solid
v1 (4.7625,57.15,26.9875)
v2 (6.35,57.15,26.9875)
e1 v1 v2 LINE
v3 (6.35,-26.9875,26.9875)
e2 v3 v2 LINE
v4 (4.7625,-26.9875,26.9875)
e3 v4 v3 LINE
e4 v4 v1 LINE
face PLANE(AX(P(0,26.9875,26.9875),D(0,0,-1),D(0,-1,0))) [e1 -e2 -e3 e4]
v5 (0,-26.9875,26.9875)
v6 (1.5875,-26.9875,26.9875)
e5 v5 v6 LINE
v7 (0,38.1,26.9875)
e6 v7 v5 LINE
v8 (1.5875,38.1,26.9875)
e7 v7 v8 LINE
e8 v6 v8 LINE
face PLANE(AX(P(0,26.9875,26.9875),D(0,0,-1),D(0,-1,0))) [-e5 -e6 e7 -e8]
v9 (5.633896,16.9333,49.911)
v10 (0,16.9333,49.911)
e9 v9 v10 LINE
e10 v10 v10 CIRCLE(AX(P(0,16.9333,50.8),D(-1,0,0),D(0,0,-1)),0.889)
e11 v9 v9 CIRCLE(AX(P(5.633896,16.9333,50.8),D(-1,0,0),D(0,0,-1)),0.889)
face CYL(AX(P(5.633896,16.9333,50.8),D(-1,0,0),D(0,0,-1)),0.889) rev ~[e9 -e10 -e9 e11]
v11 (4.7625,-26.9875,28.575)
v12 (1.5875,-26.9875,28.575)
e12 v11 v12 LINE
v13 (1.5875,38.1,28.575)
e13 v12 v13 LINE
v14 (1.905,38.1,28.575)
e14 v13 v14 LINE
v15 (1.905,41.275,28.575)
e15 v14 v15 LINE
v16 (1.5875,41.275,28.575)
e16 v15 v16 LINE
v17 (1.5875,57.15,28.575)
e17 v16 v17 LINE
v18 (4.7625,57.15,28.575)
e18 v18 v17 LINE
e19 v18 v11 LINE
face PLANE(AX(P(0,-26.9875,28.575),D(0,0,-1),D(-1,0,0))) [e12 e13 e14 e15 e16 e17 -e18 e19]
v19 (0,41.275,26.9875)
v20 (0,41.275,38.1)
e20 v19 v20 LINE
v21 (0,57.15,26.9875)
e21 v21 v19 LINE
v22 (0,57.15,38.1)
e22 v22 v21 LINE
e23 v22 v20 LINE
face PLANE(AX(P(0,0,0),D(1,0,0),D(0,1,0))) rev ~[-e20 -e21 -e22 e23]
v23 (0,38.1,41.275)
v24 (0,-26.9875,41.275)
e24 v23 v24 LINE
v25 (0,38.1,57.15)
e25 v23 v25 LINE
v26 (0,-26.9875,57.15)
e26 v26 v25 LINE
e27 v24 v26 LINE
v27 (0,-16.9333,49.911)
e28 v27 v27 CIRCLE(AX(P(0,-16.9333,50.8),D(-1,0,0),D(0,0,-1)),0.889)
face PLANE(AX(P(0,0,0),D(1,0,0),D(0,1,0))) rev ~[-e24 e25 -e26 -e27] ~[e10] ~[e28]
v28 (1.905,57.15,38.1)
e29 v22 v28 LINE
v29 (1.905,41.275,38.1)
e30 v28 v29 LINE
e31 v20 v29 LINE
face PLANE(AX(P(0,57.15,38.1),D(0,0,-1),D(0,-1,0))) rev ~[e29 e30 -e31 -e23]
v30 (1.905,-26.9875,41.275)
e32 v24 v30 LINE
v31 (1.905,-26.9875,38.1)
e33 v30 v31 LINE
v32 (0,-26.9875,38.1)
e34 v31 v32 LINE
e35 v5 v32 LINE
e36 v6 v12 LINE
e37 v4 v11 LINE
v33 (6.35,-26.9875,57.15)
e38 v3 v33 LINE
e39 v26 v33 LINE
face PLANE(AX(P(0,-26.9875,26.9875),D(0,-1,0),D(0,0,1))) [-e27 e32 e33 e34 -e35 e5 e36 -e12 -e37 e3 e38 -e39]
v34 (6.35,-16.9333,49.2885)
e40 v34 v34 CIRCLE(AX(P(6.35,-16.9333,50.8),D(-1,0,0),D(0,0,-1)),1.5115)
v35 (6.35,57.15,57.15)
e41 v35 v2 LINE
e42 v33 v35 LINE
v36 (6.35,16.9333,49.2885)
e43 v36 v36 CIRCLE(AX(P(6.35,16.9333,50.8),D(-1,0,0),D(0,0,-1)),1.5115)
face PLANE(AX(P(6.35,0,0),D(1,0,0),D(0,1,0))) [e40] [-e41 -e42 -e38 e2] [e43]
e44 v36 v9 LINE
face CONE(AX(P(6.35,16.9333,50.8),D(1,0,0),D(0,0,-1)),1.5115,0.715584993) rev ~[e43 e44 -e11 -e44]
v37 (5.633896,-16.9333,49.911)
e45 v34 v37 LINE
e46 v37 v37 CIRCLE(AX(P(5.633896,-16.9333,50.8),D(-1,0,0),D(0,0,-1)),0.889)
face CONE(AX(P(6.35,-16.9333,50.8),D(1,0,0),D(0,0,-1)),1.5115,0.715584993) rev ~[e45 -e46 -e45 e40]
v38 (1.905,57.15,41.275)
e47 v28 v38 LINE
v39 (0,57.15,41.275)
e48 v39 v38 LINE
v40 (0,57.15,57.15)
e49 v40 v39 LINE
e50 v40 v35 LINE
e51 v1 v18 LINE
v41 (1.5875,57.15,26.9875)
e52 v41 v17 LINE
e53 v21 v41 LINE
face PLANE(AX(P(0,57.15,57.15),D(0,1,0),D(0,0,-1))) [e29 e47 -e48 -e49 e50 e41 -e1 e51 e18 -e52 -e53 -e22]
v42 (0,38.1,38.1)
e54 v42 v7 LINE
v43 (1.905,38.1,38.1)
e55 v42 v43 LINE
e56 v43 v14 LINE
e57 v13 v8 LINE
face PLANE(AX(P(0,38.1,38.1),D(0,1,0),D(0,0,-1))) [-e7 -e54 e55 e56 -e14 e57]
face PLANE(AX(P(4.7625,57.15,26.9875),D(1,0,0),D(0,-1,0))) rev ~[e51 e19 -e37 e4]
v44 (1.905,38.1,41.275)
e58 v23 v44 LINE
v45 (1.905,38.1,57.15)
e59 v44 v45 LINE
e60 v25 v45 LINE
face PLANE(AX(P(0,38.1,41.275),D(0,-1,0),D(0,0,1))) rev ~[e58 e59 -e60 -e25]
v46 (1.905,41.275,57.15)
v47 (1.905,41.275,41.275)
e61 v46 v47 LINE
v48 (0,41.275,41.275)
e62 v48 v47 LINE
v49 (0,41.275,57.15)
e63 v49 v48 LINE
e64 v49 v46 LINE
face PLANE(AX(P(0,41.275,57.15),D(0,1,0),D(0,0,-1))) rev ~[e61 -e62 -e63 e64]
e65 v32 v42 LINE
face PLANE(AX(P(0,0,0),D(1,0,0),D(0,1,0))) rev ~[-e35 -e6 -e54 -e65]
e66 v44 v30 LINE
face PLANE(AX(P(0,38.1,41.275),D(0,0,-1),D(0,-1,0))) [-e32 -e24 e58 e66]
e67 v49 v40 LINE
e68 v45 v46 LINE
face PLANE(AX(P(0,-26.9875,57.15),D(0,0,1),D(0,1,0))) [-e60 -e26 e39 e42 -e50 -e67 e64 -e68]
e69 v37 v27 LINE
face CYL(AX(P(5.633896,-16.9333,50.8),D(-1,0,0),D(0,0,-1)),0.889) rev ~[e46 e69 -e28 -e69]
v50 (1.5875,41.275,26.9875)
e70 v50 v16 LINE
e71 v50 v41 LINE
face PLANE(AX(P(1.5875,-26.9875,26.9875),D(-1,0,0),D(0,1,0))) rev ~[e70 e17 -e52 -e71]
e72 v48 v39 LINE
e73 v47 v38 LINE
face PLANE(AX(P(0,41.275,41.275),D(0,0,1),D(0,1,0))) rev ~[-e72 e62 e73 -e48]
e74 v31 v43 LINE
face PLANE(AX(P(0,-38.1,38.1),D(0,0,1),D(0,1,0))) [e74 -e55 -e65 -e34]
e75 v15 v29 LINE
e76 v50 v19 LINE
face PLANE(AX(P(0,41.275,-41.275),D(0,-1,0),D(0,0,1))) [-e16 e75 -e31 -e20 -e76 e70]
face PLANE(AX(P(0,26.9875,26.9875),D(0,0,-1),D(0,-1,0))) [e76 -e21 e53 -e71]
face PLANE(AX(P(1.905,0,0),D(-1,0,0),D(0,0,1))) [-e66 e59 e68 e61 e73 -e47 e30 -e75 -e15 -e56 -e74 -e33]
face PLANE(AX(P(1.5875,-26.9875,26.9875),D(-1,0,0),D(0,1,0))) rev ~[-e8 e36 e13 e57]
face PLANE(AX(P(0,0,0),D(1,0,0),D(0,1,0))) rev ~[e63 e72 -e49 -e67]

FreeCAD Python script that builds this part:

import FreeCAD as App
import Part
import Sketcher
Q = App.Units.Quantity


def add_polygon(sketch, points):
    """Adds a closed chain of lines whose ends are joined by coincident constraints."""
    first, n = sketch.GeometryCount, len(points)
    for a, b in zip(points, points[1:] + points[:1]):
        sketch.addGeometry(Part.LineSegment(App.Vector(*a, 0), App.Vector(*b, 0)), False)
    for i in range(n):
        sketch.addConstraint(Sketcher.Constraint("Coincident", first + i, 2, first + (i + 1) % n, 1))

doc = App.newDocument("Part")
body = doc.addObject("PartDesign::Body", "Body")

# Sketch on YZ plane
sketch1 = doc.addObject("Sketcher::SketchObject", "Sketch")
body.addObject(sketch1)
sketch1.AttachmentSupport = (doc.YZ_Plane, [""])
sketch1.MapMode = "FlatFace"
add_polygon(sketch1, [(57.15, 57.15), (-26.9875, 57.15), (-26.9875, 26.9875), (57.15, 26.9875)])  # lines 0-3
sketch1.addConstraint(Sketcher.Constraint("Horizontal", 0))
sketch1.addConstraint(Sketcher.Constraint("Vertical", 1))
sketch1.addConstraint(Sketcher.Constraint("Horizontal", 2))
sketch1.addConstraint(Sketcher.Constraint("Vertical", 3))
sketch1.addConstraint(Sketcher.Constraint("DistanceY", -1, 1, 0, 2, Q("2.25 in")))
sketch1.addConstraint(Sketcher.Constraint("DistanceX", -1, 1, 2, 2, Q("2.25 in")))
sketch1.addConstraint(Sketcher.Constraint("DistanceX", 0, 2, -1, 1, Q("1.0625 in")))
sketch1.addConstraint(Sketcher.Constraint("DistanceY", -1, 1, 1, 2, Q("1.0625 in")))
pad1 = doc.addObject("PartDesign::Pad", "Pad")
body.addObject(pad1)
pad1.Profile = sketch1
pad1.Length = Q("0.25 in")

# Sketch on XY plane
sketch2 = doc.addObject("Sketcher::SketchObject", "Sketch001")
body.addObject(sketch2)
sketch2.AttachmentSupport = (doc.XY_Plane, [""])
sketch2.MapMode = "FlatFace"
sketch2.AttachmentOffset = App.Placement(App.Vector(0, 0, 1.0625 * 25.4), App.Rotation())
add_polygon(sketch2, [(1.5875, -26.9875), (1.5875, 57.15), (4.7625, 57.15), (4.7625, -26.9875)])  # lines 0-3
sketch2.addConstraint(Sketcher.Constraint("Vertical", 0))
sketch2.addConstraint(Sketcher.Constraint("Horizontal", 1))
sketch2.addConstraint(Sketcher.Constraint("Vertical", 2))
sketch2.addConstraint(Sketcher.Constraint("Horizontal", 3))
sketch2.addConstraint(Sketcher.Constraint("DistanceX", 1, 1, 1, 2, Q("0.125 in")))
sketch2.addConstraint(Sketcher.Constraint("DistanceY", 0, 1, 0, 2, Q("3.3125 in")))
sketch2.addConstraint(Sketcher.Constraint("DistanceY", -1, 1, 0, 2, Q("2.25 in")))
sketch2.addConstraint(Sketcher.Constraint("DistanceX", -1, 1, 0, 2, Q("0.0625 in")))
pocket1 = doc.addObject("PartDesign::Pocket", "Pocket")
body.addObject(pocket1)
pocket1.Profile = sketch2
pocket1.Length = Q("0.0625 in")
pocket1.Reversed = True

# Sketch on YZ plane
sketch3 = doc.addObject("Sketcher::SketchObject", "Sketch002")
body.addObject(sketch3)
sketch3.AttachmentSupport = (doc.YZ_Plane, [""])
sketch3.MapMode = "FlatFace"
sketch3.AttachmentOffset = App.Placement(App.Vector(0, 0, 0.25 * 25.4), App.Rotation())
sketch3.addGeometry(Part.Circle(App.Vector(-16.9333, 50.8, 0), App.Vector(0, 0, 1), 0.889), False)
sketch3.addGeometry(Part.Circle(App.Vector(16.9333, 50.8, 0), App.Vector(0, 0, 1), 0.889), False)
sketch3.addConstraint(Sketcher.Constraint("Equal", 0, 1))
sketch3.addConstraint(Sketcher.Constraint("Symmetric", 0, 3, 1, 3, -2))
sketch3.addConstraint(Sketcher.Constraint("Diameter", 0, Q("0.07 in")))
sketch3.addConstraint(Sketcher.Constraint("DistanceY", -1, 1, 0, 3, Q("2 in")))
sketch3.addConstraint(Sketcher.Constraint("DistanceX", 0, 3, -1, 1, 16.9333))
doc.recompute()
hole = doc.addObject("PartDesign::Hole", "Hole")
body.addObject(hole)
hole.Profile = sketch3
hole.ThreadType = "None"
hole.Diameter = Q("0.07 in")
hole.DepthType = "ThroughAll"
hole.HoleCutType = "Countersink"
hole.HoleCutDiameter = 3.023
hole.HoleCutCountersinkAngle = 82

# Sketch on YZ plane
sketch4 = doc.addObject("Sketcher::SketchObject", "Sketch003")
body.addObject(sketch4)
sketch4.AttachmentSupport = (doc.YZ_Plane, [""])
sketch4.MapMode = "FlatFace"
add_polygon(sketch4, [(-41.275, 41.275), (38.1, 41.275), (38.1, 57.15), (41.275, 57.15), (41.275, 41.275), (57.15, 41.275), (57.15, 38.1), (41.275, 38.1), (41.275, -41.275), (-41.275, -41.275)])  # lines 0-9
add_polygon(sketch4, [(-38.1, 38.1), (-38.1, -38.1), (38.1, -38.1), (38.1, 38.1)])  # lines 10-13
sketch4.addConstraint(Sketcher.Constraint("Horizontal", 0))
sketch4.addConstraint(Sketcher.Constraint("Vertical", 1))
sketch4.addConstraint(Sketcher.Constraint("Horizontal", 2))
sketch4.addConstraint(Sketcher.Constraint("Vertical", 3))
sketch4.addConstraint(Sketcher.Constraint("Horizontal", 4))
sketch4.addConstraint(Sketcher.Constraint("Vertical", 5))
sketch4.addConstraint(Sketcher.Constraint("Horizontal", 6))
sketch4.addConstraint(Sketcher.Constraint("Vertical", 7))
sketch4.addConstraint(Sketcher.Constraint("Horizontal", 8))
sketch4.addConstraint(Sketcher.Constraint("Vertical", 9))
sketch4.addConstraint(Sketcher.Constraint("Vertical", 10))
sketch4.addConstraint(Sketcher.Constraint("Horizontal", 11))
sketch4.addConstraint(Sketcher.Constraint("Vertical", 12))
sketch4.addConstraint(Sketcher.Constraint("Horizontal", 13))
sketch4.addConstraint(Sketcher.Constraint("Symmetric", 3, 2, 8, 2, -1, 1))
sketch4.addConstraint(Sketcher.Constraint("Symmetric", 7, 2, 9, 2, -1, 1))
sketch4.addConstraint(Sketcher.Constraint("Symmetric", 10, 2, 12, 2, -1, 1))
sketch4.addConstraint(Sketcher.Constraint("Horizontal", 6, 2, 12, 2))
sketch4.addConstraint(Sketcher.Constraint("Vertical", 1, 2, 11, 2))
sketch4.addConstraint(Sketcher.Constraint("Equal", 6, 1))
sketch4.addConstraint(Sketcher.Constraint("Equal", 2, 5))
sketch4.addConstraint(Sketcher.Constraint("Equal", 0, 7))
sketch4.addConstraint(Sketcher.Constraint("DistanceX", 11, 1, 11, 2, Q("3 in")))
sketch4.addConstraint(Sketcher.Constraint("DistanceX", 2, 1, 2, 2, Q("0.125 in")))
sketch4.addConstraint(Sketcher.Constraint("DistanceX", 4, 1, 4, 2, Q("0.625 in")))
pocket2 = doc.addObject("PartDesign::Pocket", "Pocket001")
body.addObject(pocket2)
pocket2.Profile = sketch4
pocket2.Length = Q("0.075 in")
pocket2.Reversed = True

doc.recompute()
